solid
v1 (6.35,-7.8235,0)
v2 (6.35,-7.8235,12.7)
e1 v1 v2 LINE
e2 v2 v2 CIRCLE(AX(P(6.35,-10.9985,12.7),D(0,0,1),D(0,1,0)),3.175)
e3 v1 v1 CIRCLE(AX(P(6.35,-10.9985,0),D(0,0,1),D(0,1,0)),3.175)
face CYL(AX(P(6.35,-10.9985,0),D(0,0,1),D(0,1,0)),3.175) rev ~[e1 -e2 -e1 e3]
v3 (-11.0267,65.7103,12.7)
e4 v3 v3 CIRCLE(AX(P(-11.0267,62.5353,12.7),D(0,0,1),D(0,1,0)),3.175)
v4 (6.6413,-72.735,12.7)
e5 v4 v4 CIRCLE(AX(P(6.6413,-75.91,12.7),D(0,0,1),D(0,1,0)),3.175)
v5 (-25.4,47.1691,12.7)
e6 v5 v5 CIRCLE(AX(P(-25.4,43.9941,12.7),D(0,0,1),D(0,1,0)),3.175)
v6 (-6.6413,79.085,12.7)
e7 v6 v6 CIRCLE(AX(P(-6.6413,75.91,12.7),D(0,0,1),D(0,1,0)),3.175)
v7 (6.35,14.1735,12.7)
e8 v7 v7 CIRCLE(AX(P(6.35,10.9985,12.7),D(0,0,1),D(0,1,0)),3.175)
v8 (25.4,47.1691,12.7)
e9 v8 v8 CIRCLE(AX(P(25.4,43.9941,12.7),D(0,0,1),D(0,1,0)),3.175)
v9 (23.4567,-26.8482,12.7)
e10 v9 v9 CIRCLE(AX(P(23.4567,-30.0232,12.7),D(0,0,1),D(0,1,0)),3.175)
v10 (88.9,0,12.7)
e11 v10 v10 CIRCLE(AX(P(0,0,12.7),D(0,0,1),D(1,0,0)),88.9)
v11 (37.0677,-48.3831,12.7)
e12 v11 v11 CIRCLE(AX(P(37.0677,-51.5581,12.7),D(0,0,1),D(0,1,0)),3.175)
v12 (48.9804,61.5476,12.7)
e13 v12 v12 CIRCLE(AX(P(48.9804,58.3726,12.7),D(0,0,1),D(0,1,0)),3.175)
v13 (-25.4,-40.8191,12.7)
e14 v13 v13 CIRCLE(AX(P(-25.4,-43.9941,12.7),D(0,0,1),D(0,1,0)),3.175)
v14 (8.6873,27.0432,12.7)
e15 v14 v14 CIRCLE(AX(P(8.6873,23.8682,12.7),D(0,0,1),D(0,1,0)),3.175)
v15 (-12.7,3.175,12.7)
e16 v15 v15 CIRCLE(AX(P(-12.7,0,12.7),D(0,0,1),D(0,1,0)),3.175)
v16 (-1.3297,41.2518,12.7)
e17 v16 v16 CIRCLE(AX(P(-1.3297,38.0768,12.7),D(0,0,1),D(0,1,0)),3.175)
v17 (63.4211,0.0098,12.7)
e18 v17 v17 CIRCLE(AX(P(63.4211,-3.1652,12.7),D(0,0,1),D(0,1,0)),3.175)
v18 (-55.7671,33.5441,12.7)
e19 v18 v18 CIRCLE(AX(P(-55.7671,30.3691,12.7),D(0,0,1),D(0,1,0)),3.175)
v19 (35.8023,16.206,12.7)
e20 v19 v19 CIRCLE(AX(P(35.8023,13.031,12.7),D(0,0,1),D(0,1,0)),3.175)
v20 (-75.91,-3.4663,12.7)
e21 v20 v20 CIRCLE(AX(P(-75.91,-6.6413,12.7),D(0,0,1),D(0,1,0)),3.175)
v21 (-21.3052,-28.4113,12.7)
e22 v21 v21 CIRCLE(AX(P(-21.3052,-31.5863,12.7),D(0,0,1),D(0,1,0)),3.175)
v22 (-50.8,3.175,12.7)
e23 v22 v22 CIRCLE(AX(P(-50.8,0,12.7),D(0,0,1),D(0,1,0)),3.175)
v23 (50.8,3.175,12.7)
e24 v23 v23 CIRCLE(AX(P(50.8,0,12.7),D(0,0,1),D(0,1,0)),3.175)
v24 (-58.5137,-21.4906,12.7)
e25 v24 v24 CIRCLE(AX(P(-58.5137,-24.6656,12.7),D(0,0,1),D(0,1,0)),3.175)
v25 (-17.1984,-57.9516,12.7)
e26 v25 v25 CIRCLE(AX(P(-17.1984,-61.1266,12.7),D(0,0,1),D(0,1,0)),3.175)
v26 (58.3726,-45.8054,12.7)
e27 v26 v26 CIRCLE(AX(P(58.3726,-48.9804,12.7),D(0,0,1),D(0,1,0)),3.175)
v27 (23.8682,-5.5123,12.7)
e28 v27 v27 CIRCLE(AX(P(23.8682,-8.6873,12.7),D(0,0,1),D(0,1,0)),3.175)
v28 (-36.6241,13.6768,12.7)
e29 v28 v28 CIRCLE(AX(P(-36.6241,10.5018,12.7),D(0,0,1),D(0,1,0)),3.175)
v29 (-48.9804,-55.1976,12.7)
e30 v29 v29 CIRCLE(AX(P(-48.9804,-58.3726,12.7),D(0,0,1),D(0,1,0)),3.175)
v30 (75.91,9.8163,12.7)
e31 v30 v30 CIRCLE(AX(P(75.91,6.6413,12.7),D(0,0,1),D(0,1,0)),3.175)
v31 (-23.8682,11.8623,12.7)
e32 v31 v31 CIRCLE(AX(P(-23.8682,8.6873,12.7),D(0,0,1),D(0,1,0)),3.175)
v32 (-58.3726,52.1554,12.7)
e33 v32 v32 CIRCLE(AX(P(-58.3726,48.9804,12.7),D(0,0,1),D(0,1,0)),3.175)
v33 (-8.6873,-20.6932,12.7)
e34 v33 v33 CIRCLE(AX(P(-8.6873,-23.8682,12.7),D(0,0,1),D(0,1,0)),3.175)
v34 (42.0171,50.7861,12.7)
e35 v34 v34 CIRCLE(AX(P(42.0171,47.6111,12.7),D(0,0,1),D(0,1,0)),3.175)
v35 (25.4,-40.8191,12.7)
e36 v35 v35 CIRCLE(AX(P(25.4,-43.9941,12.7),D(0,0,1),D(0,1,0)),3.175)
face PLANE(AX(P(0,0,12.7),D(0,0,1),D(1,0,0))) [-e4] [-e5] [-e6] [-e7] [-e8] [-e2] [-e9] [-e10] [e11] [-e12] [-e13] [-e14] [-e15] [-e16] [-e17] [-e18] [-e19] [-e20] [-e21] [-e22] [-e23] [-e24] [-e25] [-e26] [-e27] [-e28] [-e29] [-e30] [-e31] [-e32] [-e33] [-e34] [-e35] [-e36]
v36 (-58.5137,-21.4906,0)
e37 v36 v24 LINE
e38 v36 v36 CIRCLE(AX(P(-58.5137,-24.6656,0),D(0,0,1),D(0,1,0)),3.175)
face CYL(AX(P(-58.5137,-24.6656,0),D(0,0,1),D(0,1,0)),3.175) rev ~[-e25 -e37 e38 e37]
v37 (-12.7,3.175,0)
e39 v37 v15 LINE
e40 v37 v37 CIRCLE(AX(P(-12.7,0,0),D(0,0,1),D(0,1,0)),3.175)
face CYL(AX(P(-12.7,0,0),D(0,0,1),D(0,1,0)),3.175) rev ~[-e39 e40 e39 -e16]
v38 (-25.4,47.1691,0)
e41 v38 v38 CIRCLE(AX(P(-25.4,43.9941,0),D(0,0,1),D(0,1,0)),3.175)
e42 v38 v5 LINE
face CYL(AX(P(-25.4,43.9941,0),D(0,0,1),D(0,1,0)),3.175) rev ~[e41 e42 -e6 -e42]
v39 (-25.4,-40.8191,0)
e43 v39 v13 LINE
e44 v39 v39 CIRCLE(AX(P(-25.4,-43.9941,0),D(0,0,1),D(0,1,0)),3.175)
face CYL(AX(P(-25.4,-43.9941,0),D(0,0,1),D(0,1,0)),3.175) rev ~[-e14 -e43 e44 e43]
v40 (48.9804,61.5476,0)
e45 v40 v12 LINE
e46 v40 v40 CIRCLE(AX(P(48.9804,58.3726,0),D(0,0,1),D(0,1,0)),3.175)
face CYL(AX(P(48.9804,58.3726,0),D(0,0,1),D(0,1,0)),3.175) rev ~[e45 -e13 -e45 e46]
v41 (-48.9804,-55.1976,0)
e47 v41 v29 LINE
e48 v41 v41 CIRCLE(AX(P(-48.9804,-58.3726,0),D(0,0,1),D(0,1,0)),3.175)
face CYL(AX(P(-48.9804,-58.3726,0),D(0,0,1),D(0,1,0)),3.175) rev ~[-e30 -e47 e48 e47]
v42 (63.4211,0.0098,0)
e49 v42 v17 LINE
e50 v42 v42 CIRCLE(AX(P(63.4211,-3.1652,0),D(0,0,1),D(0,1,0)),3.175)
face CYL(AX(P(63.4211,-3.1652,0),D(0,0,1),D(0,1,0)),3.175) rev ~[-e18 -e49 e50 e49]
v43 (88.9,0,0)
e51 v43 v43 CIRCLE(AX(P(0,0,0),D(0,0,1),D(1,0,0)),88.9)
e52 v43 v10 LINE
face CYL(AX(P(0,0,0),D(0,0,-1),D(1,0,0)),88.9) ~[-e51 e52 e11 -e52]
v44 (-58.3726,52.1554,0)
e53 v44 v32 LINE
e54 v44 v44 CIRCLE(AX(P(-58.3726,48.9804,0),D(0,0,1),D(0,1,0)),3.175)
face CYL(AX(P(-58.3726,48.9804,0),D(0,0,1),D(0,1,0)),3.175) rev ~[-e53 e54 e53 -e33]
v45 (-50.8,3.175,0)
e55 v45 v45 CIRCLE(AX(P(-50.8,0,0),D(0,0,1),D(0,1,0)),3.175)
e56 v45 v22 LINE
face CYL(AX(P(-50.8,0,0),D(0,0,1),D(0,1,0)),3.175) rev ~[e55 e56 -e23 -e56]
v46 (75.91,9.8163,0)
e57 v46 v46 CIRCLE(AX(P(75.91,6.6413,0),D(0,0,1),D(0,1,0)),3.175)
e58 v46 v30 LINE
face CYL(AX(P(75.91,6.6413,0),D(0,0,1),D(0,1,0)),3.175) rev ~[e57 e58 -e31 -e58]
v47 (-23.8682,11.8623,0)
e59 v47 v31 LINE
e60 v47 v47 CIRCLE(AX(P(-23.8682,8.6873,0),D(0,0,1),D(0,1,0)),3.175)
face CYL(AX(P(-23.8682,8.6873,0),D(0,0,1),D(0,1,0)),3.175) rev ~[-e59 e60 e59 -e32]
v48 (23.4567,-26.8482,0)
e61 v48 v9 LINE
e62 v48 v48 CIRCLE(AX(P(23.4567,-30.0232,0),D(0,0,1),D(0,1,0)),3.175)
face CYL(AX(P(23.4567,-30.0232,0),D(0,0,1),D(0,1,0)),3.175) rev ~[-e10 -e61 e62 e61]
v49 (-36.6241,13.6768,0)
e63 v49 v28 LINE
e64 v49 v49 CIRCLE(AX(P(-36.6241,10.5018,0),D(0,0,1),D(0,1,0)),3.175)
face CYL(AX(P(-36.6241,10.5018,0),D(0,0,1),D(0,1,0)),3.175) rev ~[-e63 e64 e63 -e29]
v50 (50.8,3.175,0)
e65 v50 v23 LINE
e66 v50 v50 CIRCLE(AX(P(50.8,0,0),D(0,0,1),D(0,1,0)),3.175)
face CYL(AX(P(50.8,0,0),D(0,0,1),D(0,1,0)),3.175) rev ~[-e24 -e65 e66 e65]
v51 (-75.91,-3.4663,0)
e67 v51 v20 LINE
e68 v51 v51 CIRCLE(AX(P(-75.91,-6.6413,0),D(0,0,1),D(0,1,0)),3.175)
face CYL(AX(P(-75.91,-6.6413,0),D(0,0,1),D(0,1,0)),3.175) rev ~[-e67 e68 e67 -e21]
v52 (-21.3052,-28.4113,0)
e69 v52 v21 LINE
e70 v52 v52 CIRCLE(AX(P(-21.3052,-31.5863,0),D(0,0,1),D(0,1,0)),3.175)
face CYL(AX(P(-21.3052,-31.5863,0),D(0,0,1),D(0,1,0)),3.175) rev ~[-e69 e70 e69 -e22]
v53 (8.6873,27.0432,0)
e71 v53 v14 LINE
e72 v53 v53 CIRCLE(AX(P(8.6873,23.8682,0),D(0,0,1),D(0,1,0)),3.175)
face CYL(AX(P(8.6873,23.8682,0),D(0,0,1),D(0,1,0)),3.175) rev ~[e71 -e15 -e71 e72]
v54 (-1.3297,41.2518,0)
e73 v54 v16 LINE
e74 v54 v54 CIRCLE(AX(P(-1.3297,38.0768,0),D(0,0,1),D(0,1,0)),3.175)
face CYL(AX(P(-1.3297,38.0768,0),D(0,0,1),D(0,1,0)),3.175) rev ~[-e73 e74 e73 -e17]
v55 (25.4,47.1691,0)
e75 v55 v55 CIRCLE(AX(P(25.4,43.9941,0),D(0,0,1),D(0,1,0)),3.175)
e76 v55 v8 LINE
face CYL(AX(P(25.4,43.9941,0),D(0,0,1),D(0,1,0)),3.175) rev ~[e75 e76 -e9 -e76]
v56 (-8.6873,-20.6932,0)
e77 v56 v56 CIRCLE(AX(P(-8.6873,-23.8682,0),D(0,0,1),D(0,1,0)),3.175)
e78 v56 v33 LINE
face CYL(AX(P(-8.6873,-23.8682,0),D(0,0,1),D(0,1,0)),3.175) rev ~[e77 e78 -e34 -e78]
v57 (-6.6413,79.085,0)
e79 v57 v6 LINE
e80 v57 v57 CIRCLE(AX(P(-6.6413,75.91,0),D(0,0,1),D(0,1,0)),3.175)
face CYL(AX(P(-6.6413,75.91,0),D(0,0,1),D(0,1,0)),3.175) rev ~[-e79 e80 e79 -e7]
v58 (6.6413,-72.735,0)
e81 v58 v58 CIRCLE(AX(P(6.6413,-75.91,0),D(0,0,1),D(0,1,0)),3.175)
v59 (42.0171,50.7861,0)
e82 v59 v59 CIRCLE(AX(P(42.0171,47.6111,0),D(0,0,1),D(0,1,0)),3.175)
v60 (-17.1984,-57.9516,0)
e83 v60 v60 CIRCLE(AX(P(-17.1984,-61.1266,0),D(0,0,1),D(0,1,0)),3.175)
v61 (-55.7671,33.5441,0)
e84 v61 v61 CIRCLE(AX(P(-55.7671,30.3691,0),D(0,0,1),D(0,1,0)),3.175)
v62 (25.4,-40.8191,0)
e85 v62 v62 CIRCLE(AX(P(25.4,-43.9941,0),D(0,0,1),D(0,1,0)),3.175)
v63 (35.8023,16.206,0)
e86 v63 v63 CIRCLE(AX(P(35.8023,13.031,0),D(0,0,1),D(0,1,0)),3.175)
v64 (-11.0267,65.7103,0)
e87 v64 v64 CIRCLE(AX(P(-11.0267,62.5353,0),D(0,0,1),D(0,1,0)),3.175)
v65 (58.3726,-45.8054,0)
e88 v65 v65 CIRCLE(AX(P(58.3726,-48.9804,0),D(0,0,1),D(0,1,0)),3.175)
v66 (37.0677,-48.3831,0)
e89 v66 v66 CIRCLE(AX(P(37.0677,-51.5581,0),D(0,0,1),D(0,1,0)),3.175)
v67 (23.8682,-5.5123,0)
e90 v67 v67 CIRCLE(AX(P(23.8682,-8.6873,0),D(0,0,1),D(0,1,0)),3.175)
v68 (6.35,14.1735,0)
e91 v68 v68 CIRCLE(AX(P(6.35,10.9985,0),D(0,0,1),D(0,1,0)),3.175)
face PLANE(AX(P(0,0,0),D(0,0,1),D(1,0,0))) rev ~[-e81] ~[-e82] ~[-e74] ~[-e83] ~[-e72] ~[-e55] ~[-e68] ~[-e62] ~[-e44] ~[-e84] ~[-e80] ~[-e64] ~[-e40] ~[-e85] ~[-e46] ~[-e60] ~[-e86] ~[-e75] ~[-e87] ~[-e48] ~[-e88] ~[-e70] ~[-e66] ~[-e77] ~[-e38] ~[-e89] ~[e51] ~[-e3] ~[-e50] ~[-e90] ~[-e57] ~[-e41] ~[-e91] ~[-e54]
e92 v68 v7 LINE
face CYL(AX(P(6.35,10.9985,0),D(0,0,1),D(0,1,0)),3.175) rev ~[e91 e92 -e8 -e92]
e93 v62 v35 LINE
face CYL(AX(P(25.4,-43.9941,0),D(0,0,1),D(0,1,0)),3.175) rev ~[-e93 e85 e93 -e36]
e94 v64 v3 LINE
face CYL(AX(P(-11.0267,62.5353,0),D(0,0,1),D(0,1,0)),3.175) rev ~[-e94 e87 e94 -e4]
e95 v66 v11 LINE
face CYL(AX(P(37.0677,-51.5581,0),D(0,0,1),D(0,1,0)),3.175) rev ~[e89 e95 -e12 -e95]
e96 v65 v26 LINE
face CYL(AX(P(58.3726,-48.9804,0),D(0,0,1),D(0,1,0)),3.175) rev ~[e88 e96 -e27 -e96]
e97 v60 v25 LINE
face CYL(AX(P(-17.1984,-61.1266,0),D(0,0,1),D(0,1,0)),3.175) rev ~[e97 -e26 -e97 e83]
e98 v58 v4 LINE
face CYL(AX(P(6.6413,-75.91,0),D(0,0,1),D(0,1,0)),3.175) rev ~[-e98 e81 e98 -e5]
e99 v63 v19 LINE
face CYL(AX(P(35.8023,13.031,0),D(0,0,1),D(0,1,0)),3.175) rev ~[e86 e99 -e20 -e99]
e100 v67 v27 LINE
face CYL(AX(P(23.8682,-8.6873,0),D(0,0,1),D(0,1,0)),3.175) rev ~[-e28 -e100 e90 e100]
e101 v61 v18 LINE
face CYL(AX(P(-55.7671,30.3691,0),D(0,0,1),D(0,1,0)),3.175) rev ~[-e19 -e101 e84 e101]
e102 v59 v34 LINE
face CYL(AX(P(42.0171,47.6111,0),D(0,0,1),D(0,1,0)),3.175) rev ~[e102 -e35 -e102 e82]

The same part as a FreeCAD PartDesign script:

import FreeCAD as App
import Part
import Sketcher

V = App.Vector
Q = App.Units.Quantity

doc = App.newDocument("Part")
params = doc.addObject("Spreadsheet::Sheet", "Params")
for row, (alias, value) in enumerate([
    ("sketch1_diameter", "7 in"),
    ("pad1_length", "0.5 in"),
    ("sketch2_diameter", "0.25 in"),
    ("hole_diameter", "0.25 in"),
], start=1):
    params.set(f"A{row}", alias)
    params.set(f"B{row}", "=" + value)
    params.setAlias(f"B{row}", alias)

body = doc.addObject("PartDesign::Body", "Body")

# Sketch on XY plane
sketch1 = doc.addObject("Sketcher::SketchObject", "Sketch")
body.addObject(sketch1)
sketch1.AttachmentSupport = (doc.XY_Plane, [""])
sketch1.MapMode = "FlatFace"
sketch1.addGeometry(Part.Circle(V(0, 0, 0), V(0, 0, 1), 89), False)
sketch1.addConstraint([
    Sketcher.Constraint("Coincident", 0, 3, -1, 1),
    Sketcher.Constraint("Diameter", 0, Q("7 in")),
])
sketch1.setExpression("Constraints[1]", "Params.sketch1_diameter")
pad1 = doc.addObject("PartDesign::Pad", "Pad")
body.addObject(pad1)
pad1.Profile = sketch1
pad1.setExpression("Length", "Params.pad1_length")

# Sketch on XY plane
sketch2 = doc.addObject("Sketcher::SketchObject", "Sketch001")
body.addObject(sketch2)
sketch2.AttachmentSupport = (doc.XY_Plane, [""])
sketch2.MapMode = "FlatFace"
sketch2.addGeometry([
    Part.Circle(V(-58.4, 49, 0), V(0, 0, 1), 3.2),  # 0
    Part.Circle(V(-11, 62.5, 0), V(0, 0, 1), 3.2),  # 1
    Part.Circle(V(25.4, 44, 0), V(0, 0, 1), 3.2),  # 2
    Part.Circle(V(35.8, 13, 0), V(0, 0, 1), 3.2),  # 3
    Part.Circle(V(23.9, -8.7, 0), V(0, 0, 1), 3.2),  # 4
    Part.Circle(V(-12.7, 0, 0), V(0, 0, 1), 3.2),  # 5
    Part.Circle(V(-75.9, -6.6, 0), V(0, 0, 1), 3.2),  # 6
    Part.Circle(V(-49, -58.4, 0), V(0, 0, 1), 3.2),  # 7
    Part.Circle(V(6.6, -75.9, 0), V(0, 0, 1), 3.2),  # 8
    Part.Circle(V(58.4, -49, 0), V(0, 0, 1), 3.2),  # 9
    Part.Circle(V(75.9, 6.6, 0), V(0, 0, 1), 3.2),  # 10
    Part.Circle(V(49, 58.4, 0), V(0, 0, 1), 3.2),  # 11
    Part.Circle(V(-6.6, 75.9, 0), V(0, 0, 1), 3.2),  # 12
    Part.Circle(V(-55.8, 30.4, 0), V(0, 0, 1), 3.2),  # 13
    Part.Circle(V(-58.5, -24.7, 0), V(0, 0, 1), 3.2),  # 14
    Part.Circle(V(-17.2, -61.1, 0), V(0, 0, 1), 3.2),  # 15
    Part.Circle(V(37.1, -51.6, 0), V(0, 0, 1), 3.2),  # 16
    Part.Circle(V(63.4, -3.2, 0), V(0, 0, 1), 3.2),  # 17
    Part.Circle(V(42, 47.6, 0), V(0, 0, 1), 3.2),  # 18
    Part.Circle(V(-25.4, 44, 0), V(0, 0, 1), 3.2),  # 19
    Part.Circle(V(-50.8, 0, 0), V(0, 0, 1), 3.2),  # 20
    Part.Circle(V(-25.4, -44, 0), V(0, 0, 1), 3.2),  # 21
    Part.Circle(V(25.4, -44, 0), V(0, 0, 1), 3.2),  # 22
    Part.Circle(V(50.8, 0, 0), V(0, 0, 1), 3.2),  # 23
    Part.Circle(V(-1.3, 38.1, 0), V(0, 0, 1), 3.2),  # 24
    Part.Circle(V(-36.6, 10.5, 0), V(0, 0, 1), 3.2),  # 25
    Part.Circle(V(-21.3, -31.6, 0), V(0, 0, 1), 3.2),  # 26
    Part.Circle(V(23.5, -30, 0), V(0, 0, 1), 3.2),  # 27
    Part.Circle(V(8.7, 23.9, 0), V(0, 0, 1), 3.2),  # 28
    Part.Circle(V(-23.9, 8.7, 0), V(0, 0, 1), 3.2),  # 29
    Part.Circle(V(-8.7, -23.9, 0), V(0, 0, 1), 3.2),  # 30
    Part.Circle(V(6.3, -11, 0), V(0, 0, 1), 3.2),  # 31
    Part.Circle(V(6.3, 11, 0), V(0, 0, 1), 3.2),  # 32
], False)
sketch2.addConstraint([
    Sketcher.Constraint("Equal", 0, 1),
    Sketcher.Constraint("Equal", 1, 2),
    Sketcher.Constraint("Equal", 2, 3),
    Sketcher.Constraint("Equal", 3, 4),
    Sketcher.Constraint("Equal", 4, 5),
    Sketcher.Constraint("Equal", 5, 6),
    Sketcher.Constraint("Equal", 6, 7),
    Sketcher.Constraint("Equal", 7, 8),
    Sketcher.Constraint("Equal", 8, 9),
    Sketcher.Constraint("Equal", 9, 10),
    Sketcher.Constraint("Equal", 10, 11),
    Sketcher.Constraint("Equal", 11, 12),
    Sketcher.Constraint("Equal", 12, 13),
    Sketcher.Constraint("Equal", 13, 14),
    Sketcher.Constraint("Equal", 14, 15),
    Sketcher.Constraint("Equal", 15, 16),
    Sketcher.Constraint("Equal", 16, 17),
    Sketcher.Constraint("Equal", 17, 18),
    Sketcher.Constraint("Equal", 18, 19),
    Sketcher.Constraint("Equal", 19, 20),
    Sketcher.Constraint("Equal", 20, 21),
    Sketcher.Constraint("Equal", 21, 22),
    Sketcher.Constraint("Equal", 22, 23),
    Sketcher.Constraint("Equal", 23, 24),
    Sketcher.Constraint("Equal", 24, 25),
    Sketcher.Constraint("Equal", 25, 26),
    Sketcher.Constraint("Equal", 26, 27),
    Sketcher.Constraint("Equal", 27, 28),
    Sketcher.Constraint("Equal", 28, 29),
    Sketcher.Constraint("Equal", 29, 30),
    Sketcher.Constraint("Equal", 30, 31),
    Sketcher.Constraint("Equal", 31, 32),
    Sketcher.Constraint("Symmetric", 0, 3, 9, 3, -1, 1),
    Sketcher.Constraint("Symmetric", 6, 3, 10, 3, -1, 1),
    Sketcher.Constraint("Symmetric", 7, 3, 11, 3, -1, 1),
    Sketcher.Constraint("Symmetric", 8, 3, 12, 3, -1, 1),
    Sketcher.Constraint("Symmetric", 2, 3, 21, 3, -1, 1),
    Sketcher.Constraint("Symmetric", 19, 3, 22, 3, -1, 1),
    Sketcher.Constraint("Symmetric", 20, 3, 23, 3, -1, 1),
    Sketcher.Constraint("Symmetric", 4, 3, 29, 3, -1, 1),
    Sketcher.Constraint("Symmetric", 28, 3, 30, 3, -1, 1),
    Sketcher.Constraint("Symmetric", 2, 3, 19, 3, -2),
    Sketcher.Constraint("Symmetric", 31, 3, 32, 3, -1),
    Sketcher.Constraint("PointOnObject", 5, 3, -1),
    Sketcher.Constraint("PointOnObject", 20, 3, -1),
    Sketcher.Constraint("Diameter", 0, Q("0.25 in")),
    Sketcher.Constraint("DistanceX", -1, 1, 2, 3, Q("1 in")),
    Sketcher.Constraint("DistanceX", 20, 3, -1, 1, Q("2 in")),
    Sketcher.Constraint("DistanceX", 5, 3, -1, 1, Q("0.5 in")),
    Sketcher.Constraint("DistanceX", -1, 1, 31, 3, Q("0.25 in")),
    Sketcher.Constraint("DistanceY", 27, 3, 4, 3, Q("0.84 in")),
    Sketcher.Constraint("DistanceY", 31, 3, -1, 1, Q("0.433 in")),
    Sketcher.Constraint("DistanceX", 0, 3, 1, 3, Q("1.864 in")),
    Sketcher.Constraint("DistanceY", 3, 3, 1, 3, Q("1.949 in")),
    Sketcher.Constraint("DistanceX", 12, 3, 3, 3, Q("1.671 in")),
    Sketcher.Constraint("DistanceY", 15, 3, 26, 3, Q("1.163 in")),
    Sketcher.Constraint("DistanceY", 31, 3, 4, 3, Q("0.091 in")),
    Sketcher.Constraint("DistanceX", -1, 1, 4, 3, Q("0.9397 in")),
    Sketcher.Constraint("DistanceX", 14, 3, -1, 1, Q("2.3037 in")),
    Sketcher.Constraint("DistanceX", 15, 3, -1, 1, Q("0.6771 in")),
    Sketcher.Constraint("DistanceX", -1, 1, 17, 3, Q("2.4969 in")),
    Sketcher.Constraint("DistanceX", 25, 3, -1, 1, Q("1.4419 in")),
    Sketcher.Constraint("DistanceX", -1, 1, 27, 3, Q("0.9235 in")),
    Sketcher.Constraint("DistanceY", -1, 1, 28, 3, Q("0.9397 in")),
    Sketcher.Constraint("DistanceY", 2, 3, 0, 3, Q("0.1963 in")),
    Sketcher.Constraint("DistanceY", 6, 3, 1, 3, Q("2.7235 in")),
    Sketcher.Constraint("DistanceY", 7, 3, 0, 3, Q("4.2265 in")),
    Sketcher.Constraint("DistanceX", 7, 3, 3, 3, Q("3.3379 in")),
    Sketcher.Constraint("DistanceX", 3, 3, 9, 3, Q("0.8886 in")),
    Sketcher.Constraint("DistanceY", 9, 3, 3, 3, Q("2.4414 in")),
    Sketcher.Constraint("DistanceX", 4, 3, 10, 3, Q("2.0489 in")),
    Sketcher.Constraint("DistanceY", 4, 3, 10, 3, Q("0.6035 in")),
    Sketcher.Constraint("DistanceY", 6, 3, 13, 3, Q("1.4571 in")),
    Sketcher.Constraint("DistanceX", 8, 3, 16, 3, Q("1.1979 in")),
    Sketcher.Constraint("DistanceY", 4, 3, 17, 3, Q("0.2174 in")),
    Sketcher.Constraint("DistanceY", 2, 3, 18, 3, Q("0.1424 in")),
    Sketcher.Constraint("DistanceY", 15, 3, 21, 3, Q("0.6745 in")),
    Sketcher.Constraint("DistanceY", 16, 3, 22, 3, Q("0.2978 in")),
    Sketcher.Constraint("DistanceY", 24, 3, 12, 3, Q("1.4895 in")),
    Sketcher.Constraint("DistanceY", 25, 3, 19, 3, Q("1.3186 in")),
    Sketcher.Constraint("DistanceX", 14, 3, 26, 3, Q("1.4649 in")),
    Sketcher.Constraint("DistanceY", 28, 3, 24, 3, Q("0.5594 in")),
    Sketcher.Constraint("DistanceX", 30, 3, 27, 3, Q("1.2655 in")),
    Sketcher.Constraint("DistanceX", 0, 3, -1, 1, Q("58.3726 mm")),
    Sketcher.Constraint("DistanceX", 13, 3, -1, 1, Q("55.767 mm")),
    Sketcher.Constraint("DistanceY", 14, 3, -1, 1, Q("24.6656 mm")),
    Sketcher.Constraint("DistanceX", -1, 1, 18, 3, Q("42.017 mm")),
    Sketcher.Constraint("DistanceX", 24, 3, -1, 1, Q("1.3297 mm")),
])
sketch2.setExpression("Constraints[45]", "Params.sketch2_diameter")
doc.recompute()
hole = doc.addObject("PartDesign::Hole", "Hole")
body.addObject(hole)
hole.Profile = sketch2
hole.ThreadType = "None"
hole.setExpression("Diameter", "Params.hole_diameter")
hole.DepthType = "ThroughAll"
hole.Reversed = True

doc.recompute()
